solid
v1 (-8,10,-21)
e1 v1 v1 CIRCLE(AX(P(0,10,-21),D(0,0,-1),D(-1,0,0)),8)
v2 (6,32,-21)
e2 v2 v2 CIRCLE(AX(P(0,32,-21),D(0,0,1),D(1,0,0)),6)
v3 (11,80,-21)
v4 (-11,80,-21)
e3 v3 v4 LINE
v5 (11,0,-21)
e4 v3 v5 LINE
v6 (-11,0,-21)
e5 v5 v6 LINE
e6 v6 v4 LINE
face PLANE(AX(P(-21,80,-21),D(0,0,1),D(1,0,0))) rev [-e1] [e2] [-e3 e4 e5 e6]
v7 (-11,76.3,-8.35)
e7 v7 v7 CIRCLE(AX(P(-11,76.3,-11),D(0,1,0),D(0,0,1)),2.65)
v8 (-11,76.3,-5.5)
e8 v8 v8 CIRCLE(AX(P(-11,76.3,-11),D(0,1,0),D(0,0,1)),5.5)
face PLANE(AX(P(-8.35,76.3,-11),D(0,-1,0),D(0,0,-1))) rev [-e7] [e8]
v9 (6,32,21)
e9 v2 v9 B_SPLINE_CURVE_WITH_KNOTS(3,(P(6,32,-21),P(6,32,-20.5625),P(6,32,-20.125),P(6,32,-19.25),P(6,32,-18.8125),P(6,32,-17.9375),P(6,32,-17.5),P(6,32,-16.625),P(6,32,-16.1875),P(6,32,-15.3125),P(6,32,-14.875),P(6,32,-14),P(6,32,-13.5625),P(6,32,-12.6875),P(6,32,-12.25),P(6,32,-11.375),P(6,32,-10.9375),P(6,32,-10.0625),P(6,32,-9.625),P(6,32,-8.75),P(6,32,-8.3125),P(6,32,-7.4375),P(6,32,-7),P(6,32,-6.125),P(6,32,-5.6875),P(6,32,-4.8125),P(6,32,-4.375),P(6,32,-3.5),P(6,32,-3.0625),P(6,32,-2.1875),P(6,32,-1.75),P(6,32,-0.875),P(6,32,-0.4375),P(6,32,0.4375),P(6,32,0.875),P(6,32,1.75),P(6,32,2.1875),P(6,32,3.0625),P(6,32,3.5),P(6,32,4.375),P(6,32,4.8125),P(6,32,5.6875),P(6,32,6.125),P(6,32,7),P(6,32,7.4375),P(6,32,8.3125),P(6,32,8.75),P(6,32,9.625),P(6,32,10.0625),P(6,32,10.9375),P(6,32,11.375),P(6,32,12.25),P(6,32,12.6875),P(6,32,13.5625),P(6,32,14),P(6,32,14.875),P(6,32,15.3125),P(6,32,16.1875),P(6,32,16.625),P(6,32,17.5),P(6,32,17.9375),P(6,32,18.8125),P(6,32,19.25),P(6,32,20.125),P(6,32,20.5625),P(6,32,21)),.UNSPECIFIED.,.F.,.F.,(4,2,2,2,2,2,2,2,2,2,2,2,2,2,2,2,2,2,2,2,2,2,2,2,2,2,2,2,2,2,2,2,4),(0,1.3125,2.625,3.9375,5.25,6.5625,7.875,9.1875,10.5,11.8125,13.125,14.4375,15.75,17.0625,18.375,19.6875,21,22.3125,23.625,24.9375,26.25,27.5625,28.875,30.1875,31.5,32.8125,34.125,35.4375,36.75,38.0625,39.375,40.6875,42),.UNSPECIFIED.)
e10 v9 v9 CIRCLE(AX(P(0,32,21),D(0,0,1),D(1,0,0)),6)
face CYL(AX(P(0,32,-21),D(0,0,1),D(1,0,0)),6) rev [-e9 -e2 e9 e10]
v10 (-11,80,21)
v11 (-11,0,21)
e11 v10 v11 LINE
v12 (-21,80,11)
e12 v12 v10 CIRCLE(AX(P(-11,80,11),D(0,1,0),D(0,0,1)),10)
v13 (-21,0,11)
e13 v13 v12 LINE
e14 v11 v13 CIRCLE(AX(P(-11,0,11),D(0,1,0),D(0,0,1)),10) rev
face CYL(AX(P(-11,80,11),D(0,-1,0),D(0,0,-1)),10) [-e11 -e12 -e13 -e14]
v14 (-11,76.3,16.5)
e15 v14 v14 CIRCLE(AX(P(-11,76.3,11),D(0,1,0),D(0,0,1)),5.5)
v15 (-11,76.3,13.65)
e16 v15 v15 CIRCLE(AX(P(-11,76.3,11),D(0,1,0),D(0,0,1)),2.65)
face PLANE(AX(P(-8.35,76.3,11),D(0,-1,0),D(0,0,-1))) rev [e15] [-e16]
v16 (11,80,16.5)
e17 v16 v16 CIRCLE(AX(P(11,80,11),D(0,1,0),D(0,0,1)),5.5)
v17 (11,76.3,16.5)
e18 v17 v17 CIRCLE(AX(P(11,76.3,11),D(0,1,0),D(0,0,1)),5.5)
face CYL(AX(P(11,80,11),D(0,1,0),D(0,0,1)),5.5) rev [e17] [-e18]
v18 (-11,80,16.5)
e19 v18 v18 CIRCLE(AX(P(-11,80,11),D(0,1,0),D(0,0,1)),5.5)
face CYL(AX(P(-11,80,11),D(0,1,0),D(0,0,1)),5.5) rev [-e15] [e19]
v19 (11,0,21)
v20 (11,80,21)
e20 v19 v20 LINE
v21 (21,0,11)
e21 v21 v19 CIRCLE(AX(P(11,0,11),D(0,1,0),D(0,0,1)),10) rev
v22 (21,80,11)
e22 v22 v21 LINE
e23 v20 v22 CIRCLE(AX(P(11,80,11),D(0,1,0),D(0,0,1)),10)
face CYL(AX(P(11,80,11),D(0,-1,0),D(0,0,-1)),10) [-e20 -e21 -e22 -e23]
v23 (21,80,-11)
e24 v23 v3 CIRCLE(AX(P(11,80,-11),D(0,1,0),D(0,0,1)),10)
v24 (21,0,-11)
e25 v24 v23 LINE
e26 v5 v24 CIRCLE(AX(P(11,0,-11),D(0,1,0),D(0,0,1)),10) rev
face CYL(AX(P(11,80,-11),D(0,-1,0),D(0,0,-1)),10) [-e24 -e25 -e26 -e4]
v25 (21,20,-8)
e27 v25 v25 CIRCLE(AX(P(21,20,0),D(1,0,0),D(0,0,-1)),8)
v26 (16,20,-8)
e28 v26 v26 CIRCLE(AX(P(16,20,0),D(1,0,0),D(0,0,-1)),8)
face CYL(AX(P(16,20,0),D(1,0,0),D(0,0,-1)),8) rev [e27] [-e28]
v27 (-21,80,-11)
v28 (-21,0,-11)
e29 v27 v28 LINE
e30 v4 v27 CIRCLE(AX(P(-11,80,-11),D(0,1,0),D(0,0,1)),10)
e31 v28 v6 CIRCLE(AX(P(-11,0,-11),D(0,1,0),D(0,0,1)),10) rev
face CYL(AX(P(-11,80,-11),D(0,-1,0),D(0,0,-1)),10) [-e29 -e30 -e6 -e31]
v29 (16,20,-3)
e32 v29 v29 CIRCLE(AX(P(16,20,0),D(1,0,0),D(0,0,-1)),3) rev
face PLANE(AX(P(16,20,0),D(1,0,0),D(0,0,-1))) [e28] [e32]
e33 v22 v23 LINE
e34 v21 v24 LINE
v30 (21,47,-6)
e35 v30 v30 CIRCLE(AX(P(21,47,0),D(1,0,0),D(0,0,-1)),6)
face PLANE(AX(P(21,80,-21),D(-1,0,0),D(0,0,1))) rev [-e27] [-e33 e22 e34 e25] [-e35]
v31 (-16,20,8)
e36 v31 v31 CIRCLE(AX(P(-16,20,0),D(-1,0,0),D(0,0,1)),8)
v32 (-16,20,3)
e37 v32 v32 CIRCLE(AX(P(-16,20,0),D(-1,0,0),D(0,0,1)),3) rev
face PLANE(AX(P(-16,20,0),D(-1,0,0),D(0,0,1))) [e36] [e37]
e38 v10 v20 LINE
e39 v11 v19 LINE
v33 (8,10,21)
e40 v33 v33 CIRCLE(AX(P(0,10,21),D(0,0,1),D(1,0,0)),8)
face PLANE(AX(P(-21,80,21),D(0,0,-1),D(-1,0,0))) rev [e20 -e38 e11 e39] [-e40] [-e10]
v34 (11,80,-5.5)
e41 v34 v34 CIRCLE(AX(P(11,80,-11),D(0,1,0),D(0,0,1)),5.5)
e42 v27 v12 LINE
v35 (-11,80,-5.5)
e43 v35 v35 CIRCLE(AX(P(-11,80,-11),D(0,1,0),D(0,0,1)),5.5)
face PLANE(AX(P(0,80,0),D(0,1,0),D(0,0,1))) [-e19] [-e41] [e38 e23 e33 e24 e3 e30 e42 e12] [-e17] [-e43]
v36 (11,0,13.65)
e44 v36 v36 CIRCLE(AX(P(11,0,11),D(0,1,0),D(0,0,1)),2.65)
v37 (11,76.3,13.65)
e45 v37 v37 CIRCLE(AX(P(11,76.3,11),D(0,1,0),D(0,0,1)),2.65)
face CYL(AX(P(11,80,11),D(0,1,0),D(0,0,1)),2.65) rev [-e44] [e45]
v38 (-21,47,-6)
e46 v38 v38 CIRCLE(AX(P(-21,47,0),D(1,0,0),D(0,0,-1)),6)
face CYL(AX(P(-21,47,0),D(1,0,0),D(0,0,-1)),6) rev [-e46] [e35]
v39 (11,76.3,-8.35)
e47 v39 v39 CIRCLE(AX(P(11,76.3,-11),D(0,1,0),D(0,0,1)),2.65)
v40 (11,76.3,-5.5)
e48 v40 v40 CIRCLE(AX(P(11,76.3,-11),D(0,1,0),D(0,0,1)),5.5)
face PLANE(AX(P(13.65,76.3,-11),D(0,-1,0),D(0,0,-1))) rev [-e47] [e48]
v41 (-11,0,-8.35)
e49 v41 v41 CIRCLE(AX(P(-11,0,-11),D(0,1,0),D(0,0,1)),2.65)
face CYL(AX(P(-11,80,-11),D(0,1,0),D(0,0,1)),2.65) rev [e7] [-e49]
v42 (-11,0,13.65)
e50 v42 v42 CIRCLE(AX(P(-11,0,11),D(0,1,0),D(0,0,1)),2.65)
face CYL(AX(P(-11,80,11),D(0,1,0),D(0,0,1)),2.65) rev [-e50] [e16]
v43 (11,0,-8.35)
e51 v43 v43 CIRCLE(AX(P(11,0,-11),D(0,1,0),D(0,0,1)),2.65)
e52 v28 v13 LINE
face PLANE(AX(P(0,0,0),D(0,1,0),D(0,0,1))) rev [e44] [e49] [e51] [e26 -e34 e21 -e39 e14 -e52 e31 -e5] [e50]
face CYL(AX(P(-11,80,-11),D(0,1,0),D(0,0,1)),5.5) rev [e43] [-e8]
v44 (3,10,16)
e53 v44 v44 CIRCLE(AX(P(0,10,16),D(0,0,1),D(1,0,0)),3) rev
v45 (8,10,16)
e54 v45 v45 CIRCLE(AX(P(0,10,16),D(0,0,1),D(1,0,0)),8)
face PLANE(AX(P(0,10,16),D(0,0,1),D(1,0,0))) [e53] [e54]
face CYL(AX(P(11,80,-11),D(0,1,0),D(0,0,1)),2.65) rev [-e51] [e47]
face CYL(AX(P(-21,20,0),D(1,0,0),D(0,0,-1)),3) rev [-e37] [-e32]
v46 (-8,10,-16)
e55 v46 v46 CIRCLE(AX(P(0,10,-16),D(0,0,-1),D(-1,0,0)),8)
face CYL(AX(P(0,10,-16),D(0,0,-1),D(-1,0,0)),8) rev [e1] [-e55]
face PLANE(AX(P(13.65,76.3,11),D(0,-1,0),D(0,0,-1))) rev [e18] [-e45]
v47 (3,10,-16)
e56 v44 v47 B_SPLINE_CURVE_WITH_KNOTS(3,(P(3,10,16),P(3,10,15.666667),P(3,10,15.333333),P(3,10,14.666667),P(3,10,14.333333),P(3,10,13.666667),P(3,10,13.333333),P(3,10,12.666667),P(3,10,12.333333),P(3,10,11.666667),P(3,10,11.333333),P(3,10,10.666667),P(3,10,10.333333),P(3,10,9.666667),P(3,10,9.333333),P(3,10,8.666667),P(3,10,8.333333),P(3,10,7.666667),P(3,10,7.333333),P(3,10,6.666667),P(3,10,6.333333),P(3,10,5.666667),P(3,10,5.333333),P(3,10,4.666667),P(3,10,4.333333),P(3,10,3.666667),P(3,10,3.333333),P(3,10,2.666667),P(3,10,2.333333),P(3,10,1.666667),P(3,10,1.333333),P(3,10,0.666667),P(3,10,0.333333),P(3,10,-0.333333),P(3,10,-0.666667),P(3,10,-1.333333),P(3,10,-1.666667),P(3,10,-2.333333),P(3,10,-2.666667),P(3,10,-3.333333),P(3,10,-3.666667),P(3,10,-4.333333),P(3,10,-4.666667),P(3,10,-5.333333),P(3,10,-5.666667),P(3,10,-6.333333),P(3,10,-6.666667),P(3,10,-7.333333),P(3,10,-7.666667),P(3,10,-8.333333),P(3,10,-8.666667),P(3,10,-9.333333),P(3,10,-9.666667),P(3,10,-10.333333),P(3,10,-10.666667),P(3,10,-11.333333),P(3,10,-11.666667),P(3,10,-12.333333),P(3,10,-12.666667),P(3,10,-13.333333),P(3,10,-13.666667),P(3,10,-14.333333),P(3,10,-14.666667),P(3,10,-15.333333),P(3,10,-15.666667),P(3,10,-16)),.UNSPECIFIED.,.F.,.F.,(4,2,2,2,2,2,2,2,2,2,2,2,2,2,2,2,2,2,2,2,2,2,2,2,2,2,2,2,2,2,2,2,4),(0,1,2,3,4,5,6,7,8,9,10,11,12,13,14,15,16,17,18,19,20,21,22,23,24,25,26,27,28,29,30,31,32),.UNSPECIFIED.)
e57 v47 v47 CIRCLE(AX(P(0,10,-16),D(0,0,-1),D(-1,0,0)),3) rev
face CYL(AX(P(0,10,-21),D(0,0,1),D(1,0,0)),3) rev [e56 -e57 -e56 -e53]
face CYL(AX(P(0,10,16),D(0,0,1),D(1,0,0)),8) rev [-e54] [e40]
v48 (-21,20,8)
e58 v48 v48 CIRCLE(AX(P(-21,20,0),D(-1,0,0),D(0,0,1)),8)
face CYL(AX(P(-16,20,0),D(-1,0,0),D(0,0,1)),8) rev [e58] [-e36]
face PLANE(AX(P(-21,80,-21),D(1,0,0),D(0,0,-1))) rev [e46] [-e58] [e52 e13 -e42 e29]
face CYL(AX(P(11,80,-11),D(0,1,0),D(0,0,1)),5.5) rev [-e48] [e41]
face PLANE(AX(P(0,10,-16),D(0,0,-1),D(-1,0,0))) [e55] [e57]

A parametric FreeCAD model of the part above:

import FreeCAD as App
import Part
import Sketcher

V = App.Vector


def edges_at(feature, points):
    """Names of the edges that pass closest to the given points."""
    edges = feature.Shape.Edges
    near = lambda p: min(range(len(edges)), key=lambda i: edges[i].distToShape(Part.Vertex(*p))[0])
    return sorted({f"Edge{near(p) + 1}" for p in points})


def add_polygon(sketch, points):
    """Adds a closed chain of lines whose ends are joined by coincident constraints."""
    first, n = sketch.GeometryCount, len(points)
    for a, b in zip(points, points[1:] + points[:1]):
        sketch.addGeometry(Part.LineSegment(App.Vector(*a, 0), App.Vector(*b, 0)), False)
    for i in range(n):
        sketch.addConstraint(Sketcher.Constraint("Coincident", first + i, 2, first + (i + 1) % n, 1))

doc = App.newDocument("Part")
body = doc.addObject("PartDesign::Body", "Body")

# Sketch on XZ plane
sketch1 = body.newObject("Sketcher::SketchObject", "Sketch")
sketch1.AttachmentSupport = (doc.getObject("XZ_Plane"), [""])
sketch1.MapMode = "FlatFace"
add_polygon(sketch1, [(-21, -21), (-21, 21), (21, 21), (21, -21)])  # lines 0-3
sketch1.addConstraint(Sketcher.Constraint("Vertical", 0))
sketch1.addConstraint(Sketcher.Constraint("Horizontal", 1))
sketch1.addConstraint(Sketcher.Constraint("Vertical", 2))
sketch1.addConstraint(Sketcher.Constraint("Horizontal", 3))
sketch1.addConstraint(Sketcher.Constraint("Symmetric", 0, 2, 2, 2, -1, 1))
sketch1.addConstraint(Sketcher.Constraint("Equal", 3, 0))
sketch1.addConstraint(Sketcher.Constraint("DistanceX", 1, 1, 1, 2, 42.0))
pad1 = body.newObject("PartDesign::Pad", "Pad")
pad1.Profile = sketch1
pad1.Length = 80
pad1.Reversed = True

# Sketch on XY plane
sketch2 = body.newObject("Sketcher::SketchObject", "Sketch001")
sketch2.AttachmentSupport = (doc.getObject("XY_Plane"), [""])
sketch2.MapMode = "FlatFace"
sketch2.AttachmentOffset = App.Placement(V(0, 0, 21), App.Rotation())
sketch2.addGeometry(Part.Circle(V(0, 32, 0), V(0, 0, 1), 6), False)
sketch2.addConstraint(Sketcher.Constraint("PointOnObject", 0, 3, -2))
sketch2.addConstraint(Sketcher.Constraint("Diameter", 0, 12.0))
sketch2.addConstraint(Sketcher.Constraint("DistanceY", -1, 1, 0, 3, 32.0))
pocket1 = body.newObject("PartDesign::Pocket", "Pocket")
pocket1.Profile = sketch2
pocket1.Type = "ThroughAll"

# Sketch on YZ plane
sketch3 = body.newObject("Sketcher::SketchObject", "Sketch002")
sketch3.AttachmentSupport = (doc.getObject("YZ_Plane"), [""])
sketch3.MapMode = "FlatFace"
sketch3.AttachmentOffset = App.Placement(V(0, 0, 21), App.Rotation())
sketch3.addGeometry(Part.Circle(V(47, 0, 0), V(0, 0, 1), 6), False)
sketch3.addConstraint(Sketcher.Constraint("PointOnObject", 0, 3, -1))
sketch3.addConstraint(Sketcher.Constraint("Diameter", 0, 12.0))
sketch3.addConstraint(Sketcher.Constraint("DistanceX", -1, 1, 0, 3, 47.0))
pocket2 = body.newObject("PartDesign::Pocket", "Pocket001")
pocket2.Profile = sketch3
pocket2.Type = "ThroughAll"

# Sketch on XY plane
sketch4 = body.newObject("Sketcher::SketchObject", "Sketch003")
sketch4.AttachmentSupport = (doc.getObject("XY_Plane"), [""])
sketch4.MapMode = "FlatFace"
sketch4.AttachmentOffset = App.Placement(V(0, 0, 21), App.Rotation())
sketch4.addGeometry(Part.Circle(V(0, 10, 0), V(0, 0, 1), 3), False)
sketch4.addConstraint(Sketcher.Constraint("PointOnObject", 0, 3, -2))
sketch4.addConstraint(Sketcher.Constraint("Diameter", 0, 6.0))
sketch4.addConstraint(Sketcher.Constraint("DistanceY", -1, 1, 0, 3, 10.0))
pocket3 = body.newObject("PartDesign::Pocket", "Pocket002")
pocket3.Profile = sketch4
pocket3.Type = "ThroughAll"

# Sketch on XY plane
sketch5 = body.newObject("Sketcher::SketchObject", "Sketch004")
sketch5.AttachmentSupport = (doc.getObject("XY_Plane"), [""])
sketch5.MapMode = "FlatFace"
sketch5.AttachmentOffset = App.Placement(V(0, 0, 21), App.Rotation())
sketch5.addGeometry(Part.Circle(V(0, 10, 0), V(0, 0, 1), 8), False)
sketch5.addConstraint(Sketcher.Constraint("PointOnObject", 0, 3, -2))
sketch5.addConstraint(Sketcher.Constraint("Diameter", 0, 16.0))
sketch5.addConstraint(Sketcher.Constraint("DistanceY", -1, 1, 0, 3, 10.0))
pocket4 = body.newObject("PartDesign::Pocket", "Pocket003")
pocket4.Profile = sketch5
pocket4.Length = 5

# Sketch on XY plane
sketch6 = body.newObject("Sketcher::SketchObject", "Sketch005")
sketch6.AttachmentSupport = (doc.getObject("XY_Plane"), [""])
sketch6.MapMode = "FlatFace"
sketch6.AttachmentOffset = App.Placement(V(0, 0, -16), App.Rotation())
sketch6.addGeometry(Part.Circle(V(0, 10, 0), V(0, 0, 1), 8), False)
sketch6.addConstraint(Sketcher.Constraint("PointOnObject", 0, 3, -2))
sketch6.addConstraint(Sketcher.Constraint("Diameter", 0, 16.0))
sketch6.addConstraint(Sketcher.Constraint("DistanceY", -1, 1, 0, 3, 10.0))
pocket5 = body.newObject("PartDesign::Pocket", "Pocket004")
pocket5.Profile = sketch6
pocket5.Length = 5

# Sketch on YZ plane
sketch7 = body.newObject("Sketcher::SketchObject", "Sketch006")
sketch7.AttachmentSupport = (doc.getObject("YZ_Plane"), [""])
sketch7.MapMode = "FlatFace"
sketch7.AttachmentOffset = App.Placement(V(0, 0, 21), App.Rotation())
sketch7.addGeometry(Part.Circle(V(20, 0, 0), V(0, 0, 1), 3), False)
sketch7.addConstraint(Sketcher.Constraint("PointOnObject", 0, 3, -1))
sketch7.addConstraint(Sketcher.Constraint("Diameter", 0, 6.0))
sketch7.addConstraint(Sketcher.Constraint("DistanceX", -1, 1, 0, 3, 20.0))
pocket6 = body.newObject("PartDesign::Pocket", "Pocket005")
pocket6.Profile = sketch7
pocket6.Type = "ThroughAll"

# Sketch on YZ plane
sketch8 = body.newObject("Sketcher::SketchObject", "Sketch007")
sketch8.AttachmentSupport = (doc.getObject("YZ_Plane"), [""])
sketch8.MapMode = "FlatFace"
sketch8.AttachmentOffset = App.Placement(V(0, 0, 21), App.Rotation())
sketch8.addGeometry(Part.Circle(V(20, 0, 0), V(0, 0, 1), 8), False)
sketch8.addConstraint(Sketcher.Constraint("PointOnObject", 0, 3, -1))
sketch8.addConstraint(Sketcher.Constraint("Diameter", 0, 16.0))
sketch8.addConstraint(Sketcher.Constraint("DistanceX", -1, 1, 0, 3, 20.0))
pocket7 = body.newObject("PartDesign::Pocket", "Pocket006")
pocket7.Profile = sketch8
pocket7.Length = 5

# Sketch on YZ plane
sketch9 = body.newObject("Sketcher::SketchObject", "Sketch008")
sketch9.AttachmentSupport = (doc.getObject("YZ_Plane"), [""])
sketch9.MapMode = "FlatFace"
sketch9.AttachmentOffset = App.Placement(V(0, 0, -16), App.Rotation())
sketch9.addGeometry(Part.Circle(V(20, 0, 0), V(0, 0, 1), 8), False)
sketch9.addConstraint(Sketcher.Constraint("PointOnObject", 0, 3, -1))
sketch9.addConstraint(Sketcher.Constraint("Diameter", 0, 16.0))
sketch9.addConstraint(Sketcher.Constraint("DistanceX", -1, 1, 0, 3, 20.0))
pocket8 = body.newObject("PartDesign::Pocket", "Pocket007")
pocket8.Profile = sketch9
pocket8.Length = 5
doc.recompute()

fillet = body.newObject("PartDesign::Fillet", "Fillet")
fillet.Base = (pocket8, edges_at(pocket8, [
    (21, 40, 21),
    (-21, 40, 21),
    (-21, 40, -21),
    (21, 40, -21),
]))
fillet.Radius = 10

# Sketch on XZ plane
sketch10 = body.newObject("Sketcher::SketchObject", "Sketch009")
sketch10.AttachmentSupport = (doc.getObject("XZ_Plane"), [""])
sketch10.MapMode = "FlatFace"
sketch10.AttachmentOffset = App.Placement(V(0, 0, -80), App.Rotation())
sketch10.addGeometry(Part.Circle(V(-11, -11, 0), V(0, 0, 1), 2.6), False)
sketch10.addGeometry(Part.Circle(V(11, -11, 0), V(0, 0, 1), 2.6), False)
sketch10.addGeometry(Part.Circle(V(11, 11, 0), V(0, 0, 1), 2.6), False)
sketch10.addGeometry(Part.Circle(V(-11, 11, 0), V(0, 0, 1), 2.6), False)
sketch10.addConstraint(Sketcher.Constraint("Equal", 0, 1))
sketch10.addConstraint(Sketcher.Constraint("Equal", 1, 2))
sketch10.addConstraint(Sketcher.Constraint("Equal", 2, 3))
sketch10.addConstraint(Sketcher.Constraint("Symmetric", 0, 3, 2, 3, -1, 1))
sketch10.addConstraint(Sketcher.Constraint("Symmetric", 1, 3, 3, 3, -1, 1))
sketch10.addConstraint(Sketcher.Constraint("Symmetric", 0, 3, 1, 3, -2))
sketch10.addConstraint(Sketcher.Constraint("Diameter", 0, 5.3))
sketch10.addConstraint(Sketcher.Constraint("DistanceX", 0, 3, -1, 1, 11.0))
sketch10.addConstraint(Sketcher.Constraint("DistanceY", 0, 3, -1, 1, 11.0))
doc.recompute()
hole = body.newObject("PartDesign::Hole", "Hole")
hole.Profile = sketch10
hole.ThreadType = "None"
hole.Diameter = 5.3
hole.DepthType = "ThroughAll"
hole.HoleCutType = "Counterbore"
hole.HoleCutDiameter = 11
hole.HoleCutDepth = 3.7
hole.Reversed = True

doc.recompute()
